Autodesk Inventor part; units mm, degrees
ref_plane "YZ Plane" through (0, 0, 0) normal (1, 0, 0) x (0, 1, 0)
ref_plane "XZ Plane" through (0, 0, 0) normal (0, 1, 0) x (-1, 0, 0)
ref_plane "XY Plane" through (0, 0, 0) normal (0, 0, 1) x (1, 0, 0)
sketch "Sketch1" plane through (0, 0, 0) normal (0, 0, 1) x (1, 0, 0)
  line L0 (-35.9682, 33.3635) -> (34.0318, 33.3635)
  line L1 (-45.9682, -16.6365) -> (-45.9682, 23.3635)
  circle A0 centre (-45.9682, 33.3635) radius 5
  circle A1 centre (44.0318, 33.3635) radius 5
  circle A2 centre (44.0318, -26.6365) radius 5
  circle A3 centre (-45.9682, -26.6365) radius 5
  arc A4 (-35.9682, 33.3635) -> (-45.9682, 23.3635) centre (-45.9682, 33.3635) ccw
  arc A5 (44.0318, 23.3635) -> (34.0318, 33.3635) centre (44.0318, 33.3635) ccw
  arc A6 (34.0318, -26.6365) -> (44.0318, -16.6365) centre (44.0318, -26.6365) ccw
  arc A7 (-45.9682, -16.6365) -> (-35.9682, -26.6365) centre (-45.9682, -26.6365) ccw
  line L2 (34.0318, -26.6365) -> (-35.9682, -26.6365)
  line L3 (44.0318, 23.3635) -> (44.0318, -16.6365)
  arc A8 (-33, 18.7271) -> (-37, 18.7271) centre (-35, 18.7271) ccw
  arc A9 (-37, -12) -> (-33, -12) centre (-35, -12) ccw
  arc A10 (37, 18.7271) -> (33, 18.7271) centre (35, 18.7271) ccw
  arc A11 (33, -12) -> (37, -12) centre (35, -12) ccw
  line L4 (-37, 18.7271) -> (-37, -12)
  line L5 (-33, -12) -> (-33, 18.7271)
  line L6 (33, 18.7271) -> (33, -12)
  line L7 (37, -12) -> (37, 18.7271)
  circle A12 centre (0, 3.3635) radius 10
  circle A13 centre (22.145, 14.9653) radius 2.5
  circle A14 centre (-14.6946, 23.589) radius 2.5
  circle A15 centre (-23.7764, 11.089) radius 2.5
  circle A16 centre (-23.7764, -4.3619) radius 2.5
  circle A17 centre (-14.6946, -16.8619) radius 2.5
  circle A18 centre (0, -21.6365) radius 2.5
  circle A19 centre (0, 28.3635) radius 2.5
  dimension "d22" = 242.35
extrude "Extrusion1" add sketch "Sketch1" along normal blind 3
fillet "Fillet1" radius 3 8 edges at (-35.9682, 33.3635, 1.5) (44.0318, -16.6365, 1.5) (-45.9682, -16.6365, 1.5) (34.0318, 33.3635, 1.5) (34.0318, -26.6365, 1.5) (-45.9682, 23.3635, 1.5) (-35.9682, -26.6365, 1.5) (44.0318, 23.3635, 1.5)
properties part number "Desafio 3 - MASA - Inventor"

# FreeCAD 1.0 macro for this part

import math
import FreeCAD as App
import Part
import Sketcher


def edges_at(feature, points):
    """Names of the edges that pass closest to the given points."""
    edges = feature.Shape.Edges
    near = lambda p: min(range(len(edges)), key=lambda i: edges[i].distToShape(Part.Vertex(*p))[0])
    return sorted({f"Edge{near(p) + 1}" for p in points})

doc = App.newDocument("Part")
body = doc.addObject("PartDesign::Body", "Body")

sketch1 = body.newObject("Sketcher::SketchObject", "Sketch")
sketch1.AttachmentSupport = (doc.getObject("XY_Plane"), [""])
sketch1.MapMode = "FlatFace"
sketch1.addGeometry([
    Part.LineSegment(App.Vector(34, 33.4, 0), App.Vector(-36, 33.4, 0)),
    Part.ArcOfCircle(Part.Circle(App.Vector(-46, 33.4, 0), App.Vector(0, 0, 1), 10), math.radians(0), math.radians(270)),
    Part.LineSegment(App.Vector(-46, 23.4, 0), App.Vector(-46, -16.6, 0)),
    Part.ArcOfCircle(Part.Circle(App.Vector(-46, -26.6, 0), App.Vector(0, 0, 1), 10), math.radians(90), math.radians(360)),
    Part.LineSegment(App.Vector(-36, -26.6, 0), App.Vector(34, -26.6, 0)),
    Part.ArcOfCircle(Part.Circle(App.Vector(44, -26.6, 0), App.Vector(0, 0, 1), 10), math.radians(180), math.radians(450)),
    Part.LineSegment(App.Vector(44, -16.6, 0), App.Vector(44, 23.4, 0)),
    Part.ArcOfCircle(Part.Circle(App.Vector(44, 33.4, 0), App.Vector(0, 0, 1), 10), math.radians(-90), math.radians(180)),
    Part.Circle(App.Vector(-46, -26.6, 0), App.Vector(0, 0, 1), 5),
    Part.Circle(App.Vector(-14.7, -16.9, 0), App.Vector(0, 0, 1), 2.5),
    Part.Circle(App.Vector(-23.8, -4.4, 0), App.Vector(0, 0, 1), 2.5),
    Part.Circle(App.Vector(0, -21.6, 0), App.Vector(0, 0, 1), 2.5),
    Part.Circle(App.Vector(44, -26.6, 0), App.Vector(0, 0, 1), 5),
    Part.ArcOfCircle(Part.Circle(App.Vector(-35, 18.7, 0), App.Vector(0, 0, 1), 2), math.radians(0), math.radians(180)),
    Part.LineSegment(App.Vector(-33, 18.7, 0), App.Vector(-33, -12, 0)),
    Part.ArcOfCircle(Part.Circle(App.Vector(-35, -12, 0), App.Vector(0, 0, 1), 2), math.radians(180), math.radians(360)),
    Part.LineSegment(App.Vector(-37, -12, 0), App.Vector(-37, 18.7, 0)),
    Part.Circle(App.Vector(-23.8, 11.1, 0), App.Vector(0, 0, 1), 2.5),
    Part.Circle(App.Vector(-46, 33.4, 0), App.Vector(0, 0, 1), 5),
    Part.Circle(App.Vector(-14.7, 23.6, 0), App.Vector(0, 0, 1), 2.5),
    Part.Circle(App.Vector(0, 3.4, 0), App.Vector(0, 0, 1), 10),
    Part.Circle(App.Vector(22.1, 15, 0), App.Vector(0, 0, 1), 2.5),
    Part.ArcOfCircle(Part.Circle(App.Vector(35, 18.7, 0), App.Vector(0, 0, 1), 2), math.radians(0), math.radians(180)),
    Part.LineSegment(App.Vector(37, 18.7, 0), App.Vector(37, -12, 0)),
    Part.ArcOfCircle(Part.Circle(App.Vector(35, -12, 0), App.Vector(0, 0, 1), 2), math.radians(180), math.radians(360)),
    Part.LineSegment(App.Vector(33, -12, 0), App.Vector(33, 18.7, 0)),
    Part.Circle(App.Vector(0, 28.4, 0), App.Vector(0, 0, 1), 2.5),
    Part.Circle(App.Vector(44, 33.4, 0), App.Vector(0, 0, 1), 5),
], False)
sketch1.addConstraint([
    Sketcher.Constraint("Coincident", 0, 2, 1, 1),
    Sketcher.Constraint("Coincident", 1, 2, 2, 1),
    Sketcher.Constraint("Coincident", 2, 2, 3, 1),
    Sketcher.Constraint("Coincident", 3, 2, 4, 1),
    Sketcher.Constraint("Coincident", 4, 2, 5, 1),
    Sketcher.Constraint("Coincident", 5, 2, 6, 1),
    Sketcher.Constraint("Coincident", 6, 2, 7, 1),
    Sketcher.Constraint("Coincident", 7, 2, 0, 1),
    Sketcher.Constraint("Tangent", 13, 1, 14, 1),
    Sketcher.Constraint("Tangent", 14, 2, 15, 2),
    Sketcher.Constraint("Tangent", 15, 1, 16, 1),
    Sketcher.Constraint("Tangent", 16, 2, 13, 2),
    Sketcher.Constraint("Tangent", 22, 1, 23, 1),
    Sketcher.Constraint("Tangent", 23, 2, 24, 2),
    Sketcher.Constraint("Tangent", 24, 1, 25, 1),
    Sketcher.Constraint("Tangent", 25, 2, 22, 2),
    Sketcher.Constraint("Horizontal", 0),
    Sketcher.Constraint("Vertical", 2),
    Sketcher.Constraint("Horizontal", 4),
    Sketcher.Constraint("Vertical", 6),
    Sketcher.Constraint("Vertical", 14),
    Sketcher.Constraint("Vertical", 16),
    Sketcher.Constraint("Vertical", 23),
    Sketcher.Constraint("Vertical", 25),
    Sketcher.Constraint("Coincident", 8, 3, 3, 3),
    Sketcher.Constraint("Coincident", 12, 3, 5, 3),
    Sketcher.Constraint("Coincident", 18, 3, 1, 3),
    Sketcher.Constraint("Coincident", 27, 3, 7, 3),
    Sketcher.Constraint("Equal", 1, 3),
    Sketcher.Constraint("Equal", 3, 5),
    Sketcher.Constraint("Equal", 5, 7),
    Sketcher.Constraint("Equal", 9, 10),
    Sketcher.Constraint("Equal", 10, 11),
    Sketcher.Constraint("Equal", 8, 12),
    Sketcher.Constraint("Equal", 11, 17),
    Sketcher.Constraint("Equal", 12, 18),
    Sketcher.Constraint("Equal", 17, 19),
    Sketcher.Constraint("Equal", 7, 20),
    Sketcher.Constraint("Equal", 19, 21),
    Sketcher.Constraint("Equal", 15, 22),
    Sketcher.Constraint("Equal", 21, 26),
    Sketcher.Constraint("Equal", 18, 27),
    Sketcher.Constraint("Symmetric", 13, 3, 22, 3, -2),
    Sketcher.Constraint("PointOnObject", 11, 3, -2),
    Sketcher.Constraint("PointOnObject", 20, 3, -2),
    Sketcher.Constraint("PointOnObject", 26, 3, -2),
    Sketcher.Constraint("Horizontal", 3, 3, 5, 3),
    Sketcher.Constraint("Horizontal", 1, 3, 7, 3),
    Sketcher.Constraint("Horizontal", 15, 3, 24, 3),
    Sketcher.Constraint("Horizontal", 27, 3, 0, 2),
    Sketcher.Constraint("Horizontal", 12, 3, 3, 2),
    Sketcher.Constraint("Vertical", 1, 3, 3, 3),
    Sketcher.Constraint("Vertical", 5, 3, 7, 3),
    Sketcher.Constraint("Vertical", 10, 3, 17, 3),
    Sketcher.Constraint("Vertical", 9, 3, 19, 3),
    Sketcher.Constraint("Vertical", 18, 3, 1, 2),
    Sketcher.Constraint("Vertical", 27, 3, 5, 2),
    Sketcher.Constraint("Diameter", 8, 10.0),
    Sketcher.Constraint("Diameter", 9, 5.0),
    Sketcher.Constraint("Diameter", 20, 20.0),
    Sketcher.Constraint("Radius", 13, 2.0),
    Sketcher.Constraint("DistanceX", 0, 2, 0, 1, 70.0),
    Sketcher.Constraint("DistanceY", 2, 2, 2, 1, 40.0),
    Sketcher.Constraint("DistanceX", 13, 3, -1, 1, 35.0),
    Sketcher.Constraint("DistanceY", 15, 3, -1, 1, 12.0),
    Sketcher.Constraint("DistanceY", 5, 3, 11, 3, 5.0),
    Sketcher.Constraint("DistanceY", 11, 3, 20, 3, 25.0),
    Sketcher.Constraint("DistanceY", 20, 3, 26, 3, 25.0),
    Sketcher.Constraint("DistanceY", 9, 3, 10, 3, 12.5),
    Sketcher.Constraint("DistanceY", 17, 3, 19, 3, 12.5),
    Sketcher.Constraint("DistanceY", 14, 2, 14, 1, 30.727),
    Sketcher.Constraint("DistanceY", 9, 3, -1, 1, 16.862),
    Sketcher.Constraint("DistanceY", -1, 1, 17, 3, 11.089),
    Sketcher.Constraint("DistanceX", -1, 1, 21, 3, 22.145),
    Sketcher.Constraint("DistanceX", 1, 3, -1, 1, 45.9682),
    Sketcher.Constraint("DistanceY", -1, 1, 1, 3, 33.3635),
    Sketcher.Constraint("DistanceX", 9, 3, -1, 1, 14.6946),
    Sketcher.Constraint("DistanceX", 10, 3, -1, 1, 23.7764),
    Sketcher.Constraint("DistanceY", -1, 1, 21, 3, 14.9653),
])
pad1 = body.newObject("PartDesign::Pad", "Pad")
pad1.Profile = sketch1
pad1.Length = 3
doc.recompute()

fillet = body.newObject("PartDesign::Fillet", "Fillet")
fillet.Base = (pad1, edges_at(pad1, [
    (-35.968, 33.364, 1.5),
    (44.032, -16.637, 1.5),
    (-45.968, -16.637, 1.5),
    (34.032, 33.364, 1.5),
    (34.032, -26.637, 1.5),
    (-45.968, 23.363, 1.5),
    (-35.968, -26.637, 1.5),
    (44.032, 23.363, 1.5),
]))
fillet.Radius = 3

doc.recompute()
